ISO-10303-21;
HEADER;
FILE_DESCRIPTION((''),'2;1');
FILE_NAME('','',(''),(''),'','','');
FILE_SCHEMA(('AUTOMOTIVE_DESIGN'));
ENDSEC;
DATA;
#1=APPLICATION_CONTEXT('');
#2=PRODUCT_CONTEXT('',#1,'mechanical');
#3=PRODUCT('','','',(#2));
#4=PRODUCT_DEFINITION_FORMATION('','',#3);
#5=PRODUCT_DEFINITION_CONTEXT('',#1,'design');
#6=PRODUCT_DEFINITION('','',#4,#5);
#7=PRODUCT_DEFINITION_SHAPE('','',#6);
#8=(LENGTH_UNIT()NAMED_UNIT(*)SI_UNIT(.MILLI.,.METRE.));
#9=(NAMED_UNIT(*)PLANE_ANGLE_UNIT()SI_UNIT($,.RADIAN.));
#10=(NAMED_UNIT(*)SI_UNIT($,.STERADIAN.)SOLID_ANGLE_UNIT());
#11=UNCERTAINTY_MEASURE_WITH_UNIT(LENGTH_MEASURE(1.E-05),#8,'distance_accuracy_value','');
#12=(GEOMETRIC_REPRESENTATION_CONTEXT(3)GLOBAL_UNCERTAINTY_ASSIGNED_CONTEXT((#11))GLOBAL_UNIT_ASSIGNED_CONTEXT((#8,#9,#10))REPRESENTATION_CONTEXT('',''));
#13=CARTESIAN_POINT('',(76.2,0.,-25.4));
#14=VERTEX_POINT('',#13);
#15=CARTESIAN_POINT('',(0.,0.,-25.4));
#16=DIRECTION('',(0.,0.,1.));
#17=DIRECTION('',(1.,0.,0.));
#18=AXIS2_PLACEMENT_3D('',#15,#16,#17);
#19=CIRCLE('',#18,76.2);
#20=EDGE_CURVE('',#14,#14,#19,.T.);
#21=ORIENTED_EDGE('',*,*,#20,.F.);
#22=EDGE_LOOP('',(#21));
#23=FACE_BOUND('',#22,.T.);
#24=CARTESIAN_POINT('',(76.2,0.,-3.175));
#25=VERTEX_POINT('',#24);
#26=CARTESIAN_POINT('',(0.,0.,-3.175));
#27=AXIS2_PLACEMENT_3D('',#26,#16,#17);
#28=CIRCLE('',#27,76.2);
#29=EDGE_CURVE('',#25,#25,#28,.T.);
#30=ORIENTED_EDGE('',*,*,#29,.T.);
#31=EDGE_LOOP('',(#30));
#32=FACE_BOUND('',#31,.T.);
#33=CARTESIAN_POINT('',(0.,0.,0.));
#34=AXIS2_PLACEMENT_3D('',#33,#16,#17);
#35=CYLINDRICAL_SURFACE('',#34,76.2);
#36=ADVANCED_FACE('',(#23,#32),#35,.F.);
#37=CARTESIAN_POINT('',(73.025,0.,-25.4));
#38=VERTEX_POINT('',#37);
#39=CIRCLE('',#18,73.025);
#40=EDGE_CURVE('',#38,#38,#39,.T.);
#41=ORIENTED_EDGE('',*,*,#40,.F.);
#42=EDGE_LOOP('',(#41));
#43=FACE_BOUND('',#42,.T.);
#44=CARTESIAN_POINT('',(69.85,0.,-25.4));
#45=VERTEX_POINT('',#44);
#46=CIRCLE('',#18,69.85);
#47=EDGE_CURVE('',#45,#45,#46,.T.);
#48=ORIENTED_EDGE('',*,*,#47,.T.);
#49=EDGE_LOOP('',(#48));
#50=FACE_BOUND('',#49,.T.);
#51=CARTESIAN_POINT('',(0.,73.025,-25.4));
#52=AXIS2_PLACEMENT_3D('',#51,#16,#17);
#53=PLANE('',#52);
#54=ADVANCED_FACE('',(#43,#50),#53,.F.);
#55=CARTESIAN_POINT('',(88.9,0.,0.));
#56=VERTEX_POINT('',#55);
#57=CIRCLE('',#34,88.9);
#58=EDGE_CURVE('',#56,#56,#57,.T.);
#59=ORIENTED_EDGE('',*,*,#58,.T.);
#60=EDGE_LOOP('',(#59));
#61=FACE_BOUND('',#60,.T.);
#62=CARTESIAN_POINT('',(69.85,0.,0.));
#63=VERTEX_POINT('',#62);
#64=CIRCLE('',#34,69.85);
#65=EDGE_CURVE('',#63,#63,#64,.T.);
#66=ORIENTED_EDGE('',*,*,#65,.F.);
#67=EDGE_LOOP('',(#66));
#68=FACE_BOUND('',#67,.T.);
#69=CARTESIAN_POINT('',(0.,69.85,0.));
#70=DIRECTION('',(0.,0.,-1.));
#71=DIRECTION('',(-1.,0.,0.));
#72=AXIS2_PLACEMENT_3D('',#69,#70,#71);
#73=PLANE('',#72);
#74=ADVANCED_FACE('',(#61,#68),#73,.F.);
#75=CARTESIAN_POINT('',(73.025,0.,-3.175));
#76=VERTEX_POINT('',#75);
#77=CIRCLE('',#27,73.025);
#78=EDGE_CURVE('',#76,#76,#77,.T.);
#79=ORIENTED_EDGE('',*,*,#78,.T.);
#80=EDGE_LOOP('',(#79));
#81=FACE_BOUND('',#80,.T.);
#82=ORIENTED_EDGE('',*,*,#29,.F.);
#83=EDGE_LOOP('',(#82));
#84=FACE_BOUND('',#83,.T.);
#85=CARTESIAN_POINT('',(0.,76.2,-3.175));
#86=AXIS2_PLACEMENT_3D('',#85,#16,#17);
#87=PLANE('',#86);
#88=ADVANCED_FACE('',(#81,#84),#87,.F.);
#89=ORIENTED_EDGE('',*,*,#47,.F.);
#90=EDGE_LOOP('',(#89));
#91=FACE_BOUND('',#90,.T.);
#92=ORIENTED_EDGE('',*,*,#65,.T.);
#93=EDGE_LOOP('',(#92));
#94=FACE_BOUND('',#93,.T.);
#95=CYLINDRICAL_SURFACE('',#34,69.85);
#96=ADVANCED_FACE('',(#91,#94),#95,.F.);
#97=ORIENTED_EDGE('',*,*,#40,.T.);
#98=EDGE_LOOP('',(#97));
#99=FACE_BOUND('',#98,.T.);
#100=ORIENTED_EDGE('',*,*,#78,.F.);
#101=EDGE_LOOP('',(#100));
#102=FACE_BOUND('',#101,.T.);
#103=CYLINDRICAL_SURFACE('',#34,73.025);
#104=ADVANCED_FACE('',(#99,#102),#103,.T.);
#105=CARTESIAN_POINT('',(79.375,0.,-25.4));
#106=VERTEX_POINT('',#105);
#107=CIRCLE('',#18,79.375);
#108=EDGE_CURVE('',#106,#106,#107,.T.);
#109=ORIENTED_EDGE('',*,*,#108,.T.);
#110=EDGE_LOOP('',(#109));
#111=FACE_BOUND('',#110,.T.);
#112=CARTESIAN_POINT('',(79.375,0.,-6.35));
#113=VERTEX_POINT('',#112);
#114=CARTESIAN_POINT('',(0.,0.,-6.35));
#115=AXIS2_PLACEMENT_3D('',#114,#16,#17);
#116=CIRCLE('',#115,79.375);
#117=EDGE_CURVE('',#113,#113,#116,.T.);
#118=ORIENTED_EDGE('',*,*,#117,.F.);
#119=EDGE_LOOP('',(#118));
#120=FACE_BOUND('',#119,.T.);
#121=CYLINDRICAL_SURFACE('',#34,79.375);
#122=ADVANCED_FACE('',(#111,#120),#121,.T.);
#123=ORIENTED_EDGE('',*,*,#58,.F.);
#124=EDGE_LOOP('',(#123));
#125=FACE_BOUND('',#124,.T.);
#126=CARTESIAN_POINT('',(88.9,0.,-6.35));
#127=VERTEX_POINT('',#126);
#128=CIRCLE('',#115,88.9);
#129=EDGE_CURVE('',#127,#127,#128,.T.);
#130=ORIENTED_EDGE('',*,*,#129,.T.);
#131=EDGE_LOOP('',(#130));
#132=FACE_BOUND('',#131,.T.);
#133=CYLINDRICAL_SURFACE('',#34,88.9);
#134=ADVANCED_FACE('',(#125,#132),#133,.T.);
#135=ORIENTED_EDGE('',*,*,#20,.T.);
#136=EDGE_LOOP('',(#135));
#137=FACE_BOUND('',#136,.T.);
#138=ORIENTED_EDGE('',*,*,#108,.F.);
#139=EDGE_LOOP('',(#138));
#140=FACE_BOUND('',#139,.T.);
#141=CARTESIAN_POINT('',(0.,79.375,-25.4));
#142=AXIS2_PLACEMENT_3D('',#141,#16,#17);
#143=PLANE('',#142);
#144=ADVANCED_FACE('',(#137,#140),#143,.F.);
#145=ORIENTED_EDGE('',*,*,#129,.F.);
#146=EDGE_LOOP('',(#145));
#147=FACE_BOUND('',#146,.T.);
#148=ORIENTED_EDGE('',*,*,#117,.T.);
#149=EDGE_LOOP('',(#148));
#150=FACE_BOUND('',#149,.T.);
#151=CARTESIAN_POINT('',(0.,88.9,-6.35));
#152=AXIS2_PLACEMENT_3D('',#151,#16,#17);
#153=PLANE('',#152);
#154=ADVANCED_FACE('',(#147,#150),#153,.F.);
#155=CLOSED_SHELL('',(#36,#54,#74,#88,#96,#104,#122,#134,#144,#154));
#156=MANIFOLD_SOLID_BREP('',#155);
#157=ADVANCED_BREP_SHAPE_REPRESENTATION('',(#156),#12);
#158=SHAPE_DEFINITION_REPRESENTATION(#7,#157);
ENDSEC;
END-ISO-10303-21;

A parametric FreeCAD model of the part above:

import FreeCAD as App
import Part
import Sketcher
Q = App.Units.Quantity

doc = App.newDocument("Part")
body = doc.addObject("PartDesign::Body", "Body")

# Sketch on YZ plane
sketch1 = doc.addObject("Sketcher::SketchObject", "Sketch")
body.addObject(sketch1)
sketch1.AttachmentSupport = (doc.YZ_Plane, [""])
sketch1.MapMode = "FlatFace"
sketch1.addGeometry([
    Part.LineSegment(App.Vector(69.85, 0, 0), App.Vector(69.85, -25.4, 0)),  # 0
    Part.LineSegment(App.Vector(69.85, -25.4, 0), App.Vector(73.025, -25.4, 0)),  # 1
    Part.LineSegment(App.Vector(73.025, -25.4, 0), App.Vector(73.025, -3.175, 0)),  # 2
    Part.LineSegment(App.Vector(73.025, -3.175, 0), App.Vector(76.2, -3.175, 0)),  # 3
    Part.LineSegment(App.Vector(76.2, -3.175, 0), App.Vector(76.2, -25.4, 0)),  # 4
    Part.LineSegment(App.Vector(76.2, -25.4, 0), App.Vector(79.375, -25.4, 0)),  # 5
    Part.LineSegment(App.Vector(79.375, -25.4, 0), App.Vector(79.375, -6.35, 0)),  # 6
    Part.LineSegment(App.Vector(79.375, -6.35, 0), App.Vector(88.9, -6.35, 0)),  # 7
    Part.LineSegment(App.Vector(88.9, -6.35, 0), App.Vector(88.9, 0, 0)),  # 8
    Part.LineSegment(App.Vector(88.9, 0, 0), App.Vector(69.85, 0, 0)),  # 9
], False)
sketch1.addConstraint([
    Sketcher.Constraint("Coincident", 0, 2, 1, 1),
    Sketcher.Constraint("Coincident", 1, 2, 2, 1),
    Sketcher.Constraint("Coincident", 2, 2, 3, 1),
    Sketcher.Constraint("Coincident", 3, 2, 4, 1),
    Sketcher.Constraint("Coincident", 4, 2, 5, 1),
    Sketcher.Constraint("Coincident", 5, 2, 6, 1),
    Sketcher.Constraint("Coincident", 6, 2, 7, 1),
    Sketcher.Constraint("Coincident", 7, 2, 8, 1),
    Sketcher.Constraint("Coincident", 8, 2, 9, 1),
    Sketcher.Constraint("Coincident", 9, 2, 0, 1),
    Sketcher.Constraint("Vertical", 0),
    Sketcher.Constraint("Horizontal", 1),
    Sketcher.Constraint("Vertical", 2),
    Sketcher.Constraint("Horizontal", 3),
    Sketcher.Constraint("Vertical", 4),
    Sketcher.Constraint("Horizontal", 5),
    Sketcher.Constraint("Vertical", 6),
    Sketcher.Constraint("Horizontal", 7),
    Sketcher.Constraint("Vertical", 8),
    Sketcher.Constraint("Horizontal", 9),
    Sketcher.Constraint("PointOnObject", 8, 2, -1),
    Sketcher.Constraint("Horizontal", 1, 2, 4, 2),
    Sketcher.Constraint("Equal", 1, 3),
    Sketcher.Constraint("Equal", 3, 5),
    Sketcher.Constraint("Equal", 9, 6),
    Sketcher.Constraint("DistanceY", 0, 2, 0, 1, Q("1 in")),
    Sketcher.Constraint("DistanceX", -1, 1, 3, 2, Q("3 in")),
    Sketcher.Constraint("DistanceX", 9, 2, 9, 1, Q("0.75 in")),
    Sketcher.Constraint("DistanceX", -1, 1, 7, 2, Q("3.5 in")),
    Sketcher.Constraint("DistanceY", 2, 1, 2, 2, Q("0.875 in")),
])
revolution = doc.addObject("PartDesign::Revolution", "Revolution")
body.addObject(revolution)
revolution.Profile = sketch1
revolution.ReferenceAxis = (sketch1, ["V_Axis"])
revolution.Angle = 360

doc.recompute()
